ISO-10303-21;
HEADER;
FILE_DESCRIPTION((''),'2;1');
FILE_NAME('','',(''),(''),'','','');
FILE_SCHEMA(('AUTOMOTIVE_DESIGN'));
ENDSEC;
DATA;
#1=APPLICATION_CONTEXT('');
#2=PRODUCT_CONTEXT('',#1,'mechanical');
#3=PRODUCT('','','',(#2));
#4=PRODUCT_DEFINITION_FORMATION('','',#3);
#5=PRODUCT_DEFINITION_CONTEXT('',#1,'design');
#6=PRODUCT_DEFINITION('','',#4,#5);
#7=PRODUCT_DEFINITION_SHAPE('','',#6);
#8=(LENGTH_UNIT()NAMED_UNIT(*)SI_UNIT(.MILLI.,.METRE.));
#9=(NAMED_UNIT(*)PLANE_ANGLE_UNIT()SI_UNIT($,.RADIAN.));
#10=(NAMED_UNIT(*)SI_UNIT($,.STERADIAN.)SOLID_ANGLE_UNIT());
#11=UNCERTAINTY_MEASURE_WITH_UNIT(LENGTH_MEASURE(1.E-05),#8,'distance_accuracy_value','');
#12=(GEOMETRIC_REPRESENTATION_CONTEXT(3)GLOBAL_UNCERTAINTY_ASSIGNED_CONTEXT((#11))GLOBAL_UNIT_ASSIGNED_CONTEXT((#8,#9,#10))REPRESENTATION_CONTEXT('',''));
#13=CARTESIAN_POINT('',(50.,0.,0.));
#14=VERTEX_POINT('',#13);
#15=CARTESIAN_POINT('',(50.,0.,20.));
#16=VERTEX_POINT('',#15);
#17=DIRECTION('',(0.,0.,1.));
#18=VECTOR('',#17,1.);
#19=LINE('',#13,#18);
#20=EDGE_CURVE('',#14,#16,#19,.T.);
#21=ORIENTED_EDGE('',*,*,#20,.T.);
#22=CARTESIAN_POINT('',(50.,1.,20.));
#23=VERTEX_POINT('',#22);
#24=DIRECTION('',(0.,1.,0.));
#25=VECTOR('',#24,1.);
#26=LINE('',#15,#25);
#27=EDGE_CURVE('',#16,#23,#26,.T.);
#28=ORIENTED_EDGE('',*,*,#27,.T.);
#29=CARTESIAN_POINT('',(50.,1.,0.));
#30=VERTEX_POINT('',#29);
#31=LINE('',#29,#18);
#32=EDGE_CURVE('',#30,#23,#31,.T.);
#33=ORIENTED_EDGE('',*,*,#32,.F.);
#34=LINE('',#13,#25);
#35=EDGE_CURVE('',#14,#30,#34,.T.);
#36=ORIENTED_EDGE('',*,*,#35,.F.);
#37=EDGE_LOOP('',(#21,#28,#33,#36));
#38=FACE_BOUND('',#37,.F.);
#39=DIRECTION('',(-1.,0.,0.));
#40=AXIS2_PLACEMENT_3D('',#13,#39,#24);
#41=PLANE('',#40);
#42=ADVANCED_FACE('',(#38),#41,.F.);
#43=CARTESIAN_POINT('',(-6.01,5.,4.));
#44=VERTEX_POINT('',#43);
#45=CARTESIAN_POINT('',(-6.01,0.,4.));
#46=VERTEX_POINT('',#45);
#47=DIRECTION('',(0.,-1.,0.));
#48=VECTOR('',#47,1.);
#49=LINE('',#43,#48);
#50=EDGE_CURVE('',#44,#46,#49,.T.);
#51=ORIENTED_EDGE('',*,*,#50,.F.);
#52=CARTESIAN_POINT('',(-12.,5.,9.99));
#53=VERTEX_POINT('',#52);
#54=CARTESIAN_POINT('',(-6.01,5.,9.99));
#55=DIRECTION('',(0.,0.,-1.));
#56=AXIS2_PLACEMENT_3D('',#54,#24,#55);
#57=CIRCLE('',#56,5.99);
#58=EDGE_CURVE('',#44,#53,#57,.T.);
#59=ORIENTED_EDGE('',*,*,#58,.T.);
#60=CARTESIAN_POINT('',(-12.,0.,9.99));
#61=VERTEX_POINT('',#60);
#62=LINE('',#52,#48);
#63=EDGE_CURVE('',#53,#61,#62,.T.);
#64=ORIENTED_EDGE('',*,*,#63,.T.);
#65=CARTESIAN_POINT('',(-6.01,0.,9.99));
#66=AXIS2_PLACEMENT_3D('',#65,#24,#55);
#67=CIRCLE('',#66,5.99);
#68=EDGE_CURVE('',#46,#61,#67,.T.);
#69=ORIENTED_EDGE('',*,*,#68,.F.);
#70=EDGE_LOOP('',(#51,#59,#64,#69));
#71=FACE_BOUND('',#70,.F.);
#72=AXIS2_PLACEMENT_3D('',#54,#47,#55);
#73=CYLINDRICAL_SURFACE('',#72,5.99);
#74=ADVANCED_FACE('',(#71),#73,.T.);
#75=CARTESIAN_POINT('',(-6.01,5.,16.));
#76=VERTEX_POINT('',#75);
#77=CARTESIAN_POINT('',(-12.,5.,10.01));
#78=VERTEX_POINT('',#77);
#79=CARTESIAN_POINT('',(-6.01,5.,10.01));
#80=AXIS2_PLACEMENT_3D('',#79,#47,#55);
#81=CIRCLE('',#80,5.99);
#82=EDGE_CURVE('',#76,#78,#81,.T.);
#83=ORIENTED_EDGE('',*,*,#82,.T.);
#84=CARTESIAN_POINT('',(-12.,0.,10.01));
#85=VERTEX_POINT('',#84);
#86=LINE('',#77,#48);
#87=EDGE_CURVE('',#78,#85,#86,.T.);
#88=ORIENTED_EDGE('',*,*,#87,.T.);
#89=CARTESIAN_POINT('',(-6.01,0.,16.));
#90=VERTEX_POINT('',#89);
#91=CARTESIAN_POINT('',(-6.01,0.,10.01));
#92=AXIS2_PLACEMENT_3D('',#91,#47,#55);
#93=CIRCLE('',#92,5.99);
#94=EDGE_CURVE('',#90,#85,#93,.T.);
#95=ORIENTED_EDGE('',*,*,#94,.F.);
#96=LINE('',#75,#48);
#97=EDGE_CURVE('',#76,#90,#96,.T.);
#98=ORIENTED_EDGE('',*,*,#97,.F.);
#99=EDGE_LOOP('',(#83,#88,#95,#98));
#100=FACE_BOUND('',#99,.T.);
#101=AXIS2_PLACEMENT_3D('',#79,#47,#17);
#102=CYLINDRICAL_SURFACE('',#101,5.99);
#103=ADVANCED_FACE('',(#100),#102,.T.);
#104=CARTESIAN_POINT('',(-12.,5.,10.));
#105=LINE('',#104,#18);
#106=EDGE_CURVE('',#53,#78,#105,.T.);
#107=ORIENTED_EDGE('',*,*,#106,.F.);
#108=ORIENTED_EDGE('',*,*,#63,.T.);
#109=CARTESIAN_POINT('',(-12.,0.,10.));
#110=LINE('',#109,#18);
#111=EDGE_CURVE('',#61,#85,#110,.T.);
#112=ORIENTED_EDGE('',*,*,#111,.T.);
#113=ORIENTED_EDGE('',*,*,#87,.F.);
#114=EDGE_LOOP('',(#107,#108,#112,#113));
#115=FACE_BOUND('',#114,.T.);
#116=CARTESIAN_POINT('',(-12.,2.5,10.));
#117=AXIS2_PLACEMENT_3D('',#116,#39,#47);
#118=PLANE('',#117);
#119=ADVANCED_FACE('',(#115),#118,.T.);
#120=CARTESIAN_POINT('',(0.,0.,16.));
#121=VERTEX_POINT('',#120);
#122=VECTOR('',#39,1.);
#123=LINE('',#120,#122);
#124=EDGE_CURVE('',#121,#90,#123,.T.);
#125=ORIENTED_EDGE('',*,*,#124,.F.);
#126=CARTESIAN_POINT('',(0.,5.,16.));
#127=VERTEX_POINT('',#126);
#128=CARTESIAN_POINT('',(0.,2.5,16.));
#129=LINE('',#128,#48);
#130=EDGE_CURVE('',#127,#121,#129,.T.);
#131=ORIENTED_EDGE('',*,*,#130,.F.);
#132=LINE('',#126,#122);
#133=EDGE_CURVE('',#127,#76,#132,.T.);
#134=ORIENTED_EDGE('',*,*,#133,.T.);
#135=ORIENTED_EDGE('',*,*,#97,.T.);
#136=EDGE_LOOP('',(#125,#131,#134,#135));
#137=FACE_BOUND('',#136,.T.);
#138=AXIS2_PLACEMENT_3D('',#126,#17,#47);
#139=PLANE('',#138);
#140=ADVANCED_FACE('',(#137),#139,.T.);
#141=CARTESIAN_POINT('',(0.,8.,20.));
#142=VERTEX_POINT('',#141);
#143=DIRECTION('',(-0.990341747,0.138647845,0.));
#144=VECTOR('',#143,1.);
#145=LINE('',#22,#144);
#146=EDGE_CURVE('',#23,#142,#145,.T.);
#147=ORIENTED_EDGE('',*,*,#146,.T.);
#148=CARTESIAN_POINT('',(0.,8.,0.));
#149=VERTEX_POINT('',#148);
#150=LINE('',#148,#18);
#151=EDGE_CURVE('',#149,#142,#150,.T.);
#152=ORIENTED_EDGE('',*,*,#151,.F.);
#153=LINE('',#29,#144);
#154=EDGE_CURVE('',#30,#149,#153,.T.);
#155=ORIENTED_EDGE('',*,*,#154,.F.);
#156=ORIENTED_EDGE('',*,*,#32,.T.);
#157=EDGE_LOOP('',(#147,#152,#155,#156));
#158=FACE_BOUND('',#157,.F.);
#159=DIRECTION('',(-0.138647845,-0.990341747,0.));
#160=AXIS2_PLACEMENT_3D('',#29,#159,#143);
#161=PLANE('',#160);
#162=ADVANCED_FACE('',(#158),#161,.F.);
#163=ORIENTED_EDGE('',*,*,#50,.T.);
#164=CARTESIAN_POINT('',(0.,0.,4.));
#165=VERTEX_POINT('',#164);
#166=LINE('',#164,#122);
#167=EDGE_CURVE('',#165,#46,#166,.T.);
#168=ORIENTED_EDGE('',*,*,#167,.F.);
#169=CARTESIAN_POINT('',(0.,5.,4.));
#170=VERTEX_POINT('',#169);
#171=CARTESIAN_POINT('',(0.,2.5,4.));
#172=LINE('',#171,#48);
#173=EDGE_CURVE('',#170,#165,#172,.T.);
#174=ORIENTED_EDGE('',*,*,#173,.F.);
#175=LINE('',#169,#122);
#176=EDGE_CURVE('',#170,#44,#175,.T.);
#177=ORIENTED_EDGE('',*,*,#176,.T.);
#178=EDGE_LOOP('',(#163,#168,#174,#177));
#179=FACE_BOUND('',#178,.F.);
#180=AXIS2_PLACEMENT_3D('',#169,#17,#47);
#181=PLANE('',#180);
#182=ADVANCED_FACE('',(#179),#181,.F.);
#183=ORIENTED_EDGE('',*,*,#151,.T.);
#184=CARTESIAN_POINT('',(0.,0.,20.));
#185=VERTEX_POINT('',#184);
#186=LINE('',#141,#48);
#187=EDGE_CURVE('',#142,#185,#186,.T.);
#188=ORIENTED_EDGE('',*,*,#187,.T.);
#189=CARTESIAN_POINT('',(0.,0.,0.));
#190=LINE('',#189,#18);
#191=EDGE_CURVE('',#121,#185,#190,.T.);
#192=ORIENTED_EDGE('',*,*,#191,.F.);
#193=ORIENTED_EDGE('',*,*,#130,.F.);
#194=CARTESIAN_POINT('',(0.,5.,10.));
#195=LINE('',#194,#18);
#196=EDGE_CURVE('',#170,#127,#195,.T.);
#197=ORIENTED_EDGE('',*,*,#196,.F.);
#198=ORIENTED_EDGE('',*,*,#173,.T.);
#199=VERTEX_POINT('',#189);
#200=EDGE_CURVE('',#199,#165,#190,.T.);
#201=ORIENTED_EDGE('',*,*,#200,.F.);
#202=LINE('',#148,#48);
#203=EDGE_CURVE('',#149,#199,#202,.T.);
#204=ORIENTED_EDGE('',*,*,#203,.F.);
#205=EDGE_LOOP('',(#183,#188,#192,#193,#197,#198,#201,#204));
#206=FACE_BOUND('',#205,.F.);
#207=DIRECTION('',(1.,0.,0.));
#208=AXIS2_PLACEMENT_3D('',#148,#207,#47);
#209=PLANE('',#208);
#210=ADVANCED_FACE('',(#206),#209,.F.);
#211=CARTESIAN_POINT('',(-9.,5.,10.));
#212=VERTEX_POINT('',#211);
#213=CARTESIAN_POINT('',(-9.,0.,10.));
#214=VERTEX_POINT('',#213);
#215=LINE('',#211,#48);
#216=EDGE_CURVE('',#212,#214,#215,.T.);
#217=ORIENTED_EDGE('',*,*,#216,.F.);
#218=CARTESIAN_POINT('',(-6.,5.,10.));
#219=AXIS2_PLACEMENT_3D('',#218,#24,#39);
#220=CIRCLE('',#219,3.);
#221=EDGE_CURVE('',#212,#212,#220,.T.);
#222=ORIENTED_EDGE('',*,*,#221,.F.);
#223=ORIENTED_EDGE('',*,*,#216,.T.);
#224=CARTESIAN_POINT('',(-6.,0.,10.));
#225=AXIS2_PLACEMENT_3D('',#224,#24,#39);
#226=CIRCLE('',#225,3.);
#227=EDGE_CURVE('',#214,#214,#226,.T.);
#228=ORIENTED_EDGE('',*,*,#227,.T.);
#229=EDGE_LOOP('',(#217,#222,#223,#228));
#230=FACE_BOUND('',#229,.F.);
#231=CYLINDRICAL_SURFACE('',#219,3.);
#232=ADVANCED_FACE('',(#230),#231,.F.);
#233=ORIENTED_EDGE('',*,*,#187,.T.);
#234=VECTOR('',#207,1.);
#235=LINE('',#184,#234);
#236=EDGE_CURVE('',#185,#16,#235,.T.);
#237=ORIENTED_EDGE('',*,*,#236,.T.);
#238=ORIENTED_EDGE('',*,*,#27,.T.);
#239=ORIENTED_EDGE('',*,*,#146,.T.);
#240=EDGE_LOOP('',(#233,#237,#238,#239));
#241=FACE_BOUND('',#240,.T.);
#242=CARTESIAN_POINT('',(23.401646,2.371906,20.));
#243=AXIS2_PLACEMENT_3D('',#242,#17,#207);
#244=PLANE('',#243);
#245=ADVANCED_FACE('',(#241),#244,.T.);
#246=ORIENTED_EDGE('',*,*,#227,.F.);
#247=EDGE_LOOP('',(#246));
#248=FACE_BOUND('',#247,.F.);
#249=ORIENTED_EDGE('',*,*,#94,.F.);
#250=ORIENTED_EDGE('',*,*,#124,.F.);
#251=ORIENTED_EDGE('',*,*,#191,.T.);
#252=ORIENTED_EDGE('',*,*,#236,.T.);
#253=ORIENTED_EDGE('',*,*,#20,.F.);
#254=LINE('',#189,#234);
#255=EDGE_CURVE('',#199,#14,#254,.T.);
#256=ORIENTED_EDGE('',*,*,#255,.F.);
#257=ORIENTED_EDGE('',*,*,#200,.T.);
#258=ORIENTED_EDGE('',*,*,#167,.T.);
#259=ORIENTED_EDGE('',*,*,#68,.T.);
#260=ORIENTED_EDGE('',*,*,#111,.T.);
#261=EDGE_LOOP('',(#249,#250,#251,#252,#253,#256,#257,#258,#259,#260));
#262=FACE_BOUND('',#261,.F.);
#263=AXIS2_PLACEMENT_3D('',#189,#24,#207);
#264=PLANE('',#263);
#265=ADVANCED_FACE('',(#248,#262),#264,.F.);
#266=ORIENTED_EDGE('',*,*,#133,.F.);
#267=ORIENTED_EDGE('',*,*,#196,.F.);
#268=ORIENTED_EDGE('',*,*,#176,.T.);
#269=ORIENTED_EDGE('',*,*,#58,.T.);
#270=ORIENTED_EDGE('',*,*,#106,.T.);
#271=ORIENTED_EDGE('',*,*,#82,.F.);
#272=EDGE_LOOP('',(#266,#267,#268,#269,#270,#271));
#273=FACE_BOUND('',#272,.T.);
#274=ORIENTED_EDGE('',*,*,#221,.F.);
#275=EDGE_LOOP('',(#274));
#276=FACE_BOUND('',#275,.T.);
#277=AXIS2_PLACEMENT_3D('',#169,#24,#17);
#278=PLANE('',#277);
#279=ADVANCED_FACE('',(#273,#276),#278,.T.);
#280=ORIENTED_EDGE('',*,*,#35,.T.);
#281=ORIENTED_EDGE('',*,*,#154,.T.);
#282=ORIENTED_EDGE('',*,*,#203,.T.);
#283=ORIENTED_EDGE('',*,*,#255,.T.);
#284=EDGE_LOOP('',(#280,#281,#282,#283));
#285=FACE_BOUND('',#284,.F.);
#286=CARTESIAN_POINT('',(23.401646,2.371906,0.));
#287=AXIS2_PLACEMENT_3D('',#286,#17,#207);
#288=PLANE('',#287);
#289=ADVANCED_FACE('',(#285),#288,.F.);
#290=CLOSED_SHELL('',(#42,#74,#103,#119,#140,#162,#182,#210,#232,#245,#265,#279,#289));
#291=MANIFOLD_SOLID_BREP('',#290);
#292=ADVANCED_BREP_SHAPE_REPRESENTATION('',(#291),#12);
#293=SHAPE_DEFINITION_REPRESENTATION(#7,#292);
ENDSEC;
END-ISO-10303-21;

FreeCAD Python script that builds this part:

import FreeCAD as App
import Part
import Sketcher

V = App.Vector


def edges_at(feature, points):
    """Names of the edges that pass closest to the given points."""
    edges = feature.Shape.Edges
    near = lambda p: min(range(len(edges)), key=lambda i: edges[i].distToShape(Part.Vertex(*p))[0])
    return sorted({f"Edge{near(p) + 1}" for p in points})

doc = App.newDocument("Part")
body = doc.addObject("PartDesign::Body", "Body")

# Sketch on XY plane
sketch1 = body.newObject("Sketcher::SketchObject", "Sketch")
sketch1.AttachmentSupport = (doc.getObject("XY_Plane"), [""])
sketch1.MapMode = "FlatFace"
sketch1.addGeometry(Part.LineSegment(V(0, 0, 0), V(50, 0, 0)), False)
sketch1.addGeometry(Part.LineSegment(V(50, 0, 0), V(50, 1, 0)), False)
sketch1.addGeometry(Part.LineSegment(V(50, 1, 0), V(0, 8, 0)), False)
sketch1.addGeometry(Part.LineSegment(V(0, 8, 0), V(0, 0, 0)), False)
sketch1.addConstraint(Sketcher.Constraint("Coincident", 0, 2, 1, 1))
sketch1.addConstraint(Sketcher.Constraint("Coincident", 1, 2, 2, 1))
sketch1.addConstraint(Sketcher.Constraint("Coincident", 2, 2, 3, 1))
sketch1.addConstraint(Sketcher.Constraint("Coincident", 3, 2, 0, 1))
sketch1.addConstraint(Sketcher.Constraint("Horizontal", 0))
sketch1.addConstraint(Sketcher.Constraint("Vertical", 1))
sketch1.addConstraint(Sketcher.Constraint("Vertical", 3))
sketch1.addConstraint(Sketcher.Constraint("Coincident", 3, 2, -1, 1))
sketch1.addConstraint(Sketcher.Constraint("DistanceX", 0, 1, 0, 2, 50.0))
sketch1.addConstraint(Sketcher.Constraint("DistanceY", 1, 1, 1, 2, 1.0))
sketch1.addConstraint(Sketcher.Constraint("DistanceY", 3, 2, 3, 1, 8.0))
pad1 = body.newObject("PartDesign::Pad", "Pad")
pad1.Profile = sketch1
pad1.Length = 20

# Sketch on YZ plane
sketch2 = body.newObject("Sketcher::SketchObject", "Sketch001")
sketch2.AttachmentSupport = (doc.getObject("YZ_Plane"), [""])
sketch2.MapMode = "FlatFace"
sketch2.addGeometry(Part.LineSegment(V(5, 16, 0), V(5, 4, 0)), False)
sketch2.addGeometry(Part.LineSegment(V(5, 4, 0), V(0, 4, 0)), False)
sketch2.addGeometry(Part.LineSegment(V(0, 4, 0), V(0, 16, 0)), False)
sketch2.addGeometry(Part.LineSegment(V(0, 16, 0), V(5, 16, 0)), False)
sketch2.addConstraint(Sketcher.Constraint("Coincident", 0, 2, 1, 1))
sketch2.addConstraint(Sketcher.Constraint("Coincident", 1, 2, 2, 1))
sketch2.addConstraint(Sketcher.Constraint("Coincident", 2, 2, 3, 1))
sketch2.addConstraint(Sketcher.Constraint("Coincident", 3, 2, 0, 1))
sketch2.addConstraint(Sketcher.Constraint("Vertical", 0))
sketch2.addConstraint(Sketcher.Constraint("Horizontal", 1))
sketch2.addConstraint(Sketcher.Constraint("Vertical", 2))
sketch2.addConstraint(Sketcher.Constraint("Horizontal", 3))
sketch2.addConstraint(Sketcher.Constraint("PointOnObject", 1, 2, -2))
sketch2.addConstraint(Sketcher.Constraint("DistanceX", 1, 2, 1, 1, 5.0))
sketch2.addConstraint(Sketcher.Constraint("DistanceY", 0, 2, 0, 1, 12.0))
sketch2.addConstraint(Sketcher.Constraint("DistanceY", -1, 1, 0, 2, 4.0))
pad2 = body.newObject("PartDesign::Pad", "Pad001")
pad2.Profile = sketch2
pad2.Length = 12
pad2.Reversed = True
doc.recompute()

fillet = body.newObject("PartDesign::Fillet", "Fillet")
fillet.Base = (pad2, edges_at(pad2, [(-12, 2.5, 16), (-12, 2.5, 4)]))
fillet.Radius = 5.99

# Sketch on XZ plane
sketch3 = body.newObject("Sketcher::SketchObject", "Sketch002")
sketch3.AttachmentSupport = (doc.getObject("XZ_Plane"), [""])
sketch3.MapMode = "FlatFace"
sketch3.AttachmentOffset = App.Placement(V(0, 0, -5), App.Rotation())
sketch3.addGeometry(Part.Circle(V(-6, 10, 0), V(0, 0, 1), 3), False)
sketch3.addConstraint(Sketcher.Constraint("Diameter", 0, 6.0))
sketch3.addConstraint(Sketcher.Constraint("DistanceX", 0, 3, -1, 1, 6.0))
sketch3.addConstraint(Sketcher.Constraint("DistanceY", -1, 1, 0, 3, 10.0))
pocket1 = body.newObject("PartDesign::Pocket", "Pocket")
pocket1.Profile = sketch3
pocket1.Length = 5
pocket1.Reversed = True

doc.recompute()
